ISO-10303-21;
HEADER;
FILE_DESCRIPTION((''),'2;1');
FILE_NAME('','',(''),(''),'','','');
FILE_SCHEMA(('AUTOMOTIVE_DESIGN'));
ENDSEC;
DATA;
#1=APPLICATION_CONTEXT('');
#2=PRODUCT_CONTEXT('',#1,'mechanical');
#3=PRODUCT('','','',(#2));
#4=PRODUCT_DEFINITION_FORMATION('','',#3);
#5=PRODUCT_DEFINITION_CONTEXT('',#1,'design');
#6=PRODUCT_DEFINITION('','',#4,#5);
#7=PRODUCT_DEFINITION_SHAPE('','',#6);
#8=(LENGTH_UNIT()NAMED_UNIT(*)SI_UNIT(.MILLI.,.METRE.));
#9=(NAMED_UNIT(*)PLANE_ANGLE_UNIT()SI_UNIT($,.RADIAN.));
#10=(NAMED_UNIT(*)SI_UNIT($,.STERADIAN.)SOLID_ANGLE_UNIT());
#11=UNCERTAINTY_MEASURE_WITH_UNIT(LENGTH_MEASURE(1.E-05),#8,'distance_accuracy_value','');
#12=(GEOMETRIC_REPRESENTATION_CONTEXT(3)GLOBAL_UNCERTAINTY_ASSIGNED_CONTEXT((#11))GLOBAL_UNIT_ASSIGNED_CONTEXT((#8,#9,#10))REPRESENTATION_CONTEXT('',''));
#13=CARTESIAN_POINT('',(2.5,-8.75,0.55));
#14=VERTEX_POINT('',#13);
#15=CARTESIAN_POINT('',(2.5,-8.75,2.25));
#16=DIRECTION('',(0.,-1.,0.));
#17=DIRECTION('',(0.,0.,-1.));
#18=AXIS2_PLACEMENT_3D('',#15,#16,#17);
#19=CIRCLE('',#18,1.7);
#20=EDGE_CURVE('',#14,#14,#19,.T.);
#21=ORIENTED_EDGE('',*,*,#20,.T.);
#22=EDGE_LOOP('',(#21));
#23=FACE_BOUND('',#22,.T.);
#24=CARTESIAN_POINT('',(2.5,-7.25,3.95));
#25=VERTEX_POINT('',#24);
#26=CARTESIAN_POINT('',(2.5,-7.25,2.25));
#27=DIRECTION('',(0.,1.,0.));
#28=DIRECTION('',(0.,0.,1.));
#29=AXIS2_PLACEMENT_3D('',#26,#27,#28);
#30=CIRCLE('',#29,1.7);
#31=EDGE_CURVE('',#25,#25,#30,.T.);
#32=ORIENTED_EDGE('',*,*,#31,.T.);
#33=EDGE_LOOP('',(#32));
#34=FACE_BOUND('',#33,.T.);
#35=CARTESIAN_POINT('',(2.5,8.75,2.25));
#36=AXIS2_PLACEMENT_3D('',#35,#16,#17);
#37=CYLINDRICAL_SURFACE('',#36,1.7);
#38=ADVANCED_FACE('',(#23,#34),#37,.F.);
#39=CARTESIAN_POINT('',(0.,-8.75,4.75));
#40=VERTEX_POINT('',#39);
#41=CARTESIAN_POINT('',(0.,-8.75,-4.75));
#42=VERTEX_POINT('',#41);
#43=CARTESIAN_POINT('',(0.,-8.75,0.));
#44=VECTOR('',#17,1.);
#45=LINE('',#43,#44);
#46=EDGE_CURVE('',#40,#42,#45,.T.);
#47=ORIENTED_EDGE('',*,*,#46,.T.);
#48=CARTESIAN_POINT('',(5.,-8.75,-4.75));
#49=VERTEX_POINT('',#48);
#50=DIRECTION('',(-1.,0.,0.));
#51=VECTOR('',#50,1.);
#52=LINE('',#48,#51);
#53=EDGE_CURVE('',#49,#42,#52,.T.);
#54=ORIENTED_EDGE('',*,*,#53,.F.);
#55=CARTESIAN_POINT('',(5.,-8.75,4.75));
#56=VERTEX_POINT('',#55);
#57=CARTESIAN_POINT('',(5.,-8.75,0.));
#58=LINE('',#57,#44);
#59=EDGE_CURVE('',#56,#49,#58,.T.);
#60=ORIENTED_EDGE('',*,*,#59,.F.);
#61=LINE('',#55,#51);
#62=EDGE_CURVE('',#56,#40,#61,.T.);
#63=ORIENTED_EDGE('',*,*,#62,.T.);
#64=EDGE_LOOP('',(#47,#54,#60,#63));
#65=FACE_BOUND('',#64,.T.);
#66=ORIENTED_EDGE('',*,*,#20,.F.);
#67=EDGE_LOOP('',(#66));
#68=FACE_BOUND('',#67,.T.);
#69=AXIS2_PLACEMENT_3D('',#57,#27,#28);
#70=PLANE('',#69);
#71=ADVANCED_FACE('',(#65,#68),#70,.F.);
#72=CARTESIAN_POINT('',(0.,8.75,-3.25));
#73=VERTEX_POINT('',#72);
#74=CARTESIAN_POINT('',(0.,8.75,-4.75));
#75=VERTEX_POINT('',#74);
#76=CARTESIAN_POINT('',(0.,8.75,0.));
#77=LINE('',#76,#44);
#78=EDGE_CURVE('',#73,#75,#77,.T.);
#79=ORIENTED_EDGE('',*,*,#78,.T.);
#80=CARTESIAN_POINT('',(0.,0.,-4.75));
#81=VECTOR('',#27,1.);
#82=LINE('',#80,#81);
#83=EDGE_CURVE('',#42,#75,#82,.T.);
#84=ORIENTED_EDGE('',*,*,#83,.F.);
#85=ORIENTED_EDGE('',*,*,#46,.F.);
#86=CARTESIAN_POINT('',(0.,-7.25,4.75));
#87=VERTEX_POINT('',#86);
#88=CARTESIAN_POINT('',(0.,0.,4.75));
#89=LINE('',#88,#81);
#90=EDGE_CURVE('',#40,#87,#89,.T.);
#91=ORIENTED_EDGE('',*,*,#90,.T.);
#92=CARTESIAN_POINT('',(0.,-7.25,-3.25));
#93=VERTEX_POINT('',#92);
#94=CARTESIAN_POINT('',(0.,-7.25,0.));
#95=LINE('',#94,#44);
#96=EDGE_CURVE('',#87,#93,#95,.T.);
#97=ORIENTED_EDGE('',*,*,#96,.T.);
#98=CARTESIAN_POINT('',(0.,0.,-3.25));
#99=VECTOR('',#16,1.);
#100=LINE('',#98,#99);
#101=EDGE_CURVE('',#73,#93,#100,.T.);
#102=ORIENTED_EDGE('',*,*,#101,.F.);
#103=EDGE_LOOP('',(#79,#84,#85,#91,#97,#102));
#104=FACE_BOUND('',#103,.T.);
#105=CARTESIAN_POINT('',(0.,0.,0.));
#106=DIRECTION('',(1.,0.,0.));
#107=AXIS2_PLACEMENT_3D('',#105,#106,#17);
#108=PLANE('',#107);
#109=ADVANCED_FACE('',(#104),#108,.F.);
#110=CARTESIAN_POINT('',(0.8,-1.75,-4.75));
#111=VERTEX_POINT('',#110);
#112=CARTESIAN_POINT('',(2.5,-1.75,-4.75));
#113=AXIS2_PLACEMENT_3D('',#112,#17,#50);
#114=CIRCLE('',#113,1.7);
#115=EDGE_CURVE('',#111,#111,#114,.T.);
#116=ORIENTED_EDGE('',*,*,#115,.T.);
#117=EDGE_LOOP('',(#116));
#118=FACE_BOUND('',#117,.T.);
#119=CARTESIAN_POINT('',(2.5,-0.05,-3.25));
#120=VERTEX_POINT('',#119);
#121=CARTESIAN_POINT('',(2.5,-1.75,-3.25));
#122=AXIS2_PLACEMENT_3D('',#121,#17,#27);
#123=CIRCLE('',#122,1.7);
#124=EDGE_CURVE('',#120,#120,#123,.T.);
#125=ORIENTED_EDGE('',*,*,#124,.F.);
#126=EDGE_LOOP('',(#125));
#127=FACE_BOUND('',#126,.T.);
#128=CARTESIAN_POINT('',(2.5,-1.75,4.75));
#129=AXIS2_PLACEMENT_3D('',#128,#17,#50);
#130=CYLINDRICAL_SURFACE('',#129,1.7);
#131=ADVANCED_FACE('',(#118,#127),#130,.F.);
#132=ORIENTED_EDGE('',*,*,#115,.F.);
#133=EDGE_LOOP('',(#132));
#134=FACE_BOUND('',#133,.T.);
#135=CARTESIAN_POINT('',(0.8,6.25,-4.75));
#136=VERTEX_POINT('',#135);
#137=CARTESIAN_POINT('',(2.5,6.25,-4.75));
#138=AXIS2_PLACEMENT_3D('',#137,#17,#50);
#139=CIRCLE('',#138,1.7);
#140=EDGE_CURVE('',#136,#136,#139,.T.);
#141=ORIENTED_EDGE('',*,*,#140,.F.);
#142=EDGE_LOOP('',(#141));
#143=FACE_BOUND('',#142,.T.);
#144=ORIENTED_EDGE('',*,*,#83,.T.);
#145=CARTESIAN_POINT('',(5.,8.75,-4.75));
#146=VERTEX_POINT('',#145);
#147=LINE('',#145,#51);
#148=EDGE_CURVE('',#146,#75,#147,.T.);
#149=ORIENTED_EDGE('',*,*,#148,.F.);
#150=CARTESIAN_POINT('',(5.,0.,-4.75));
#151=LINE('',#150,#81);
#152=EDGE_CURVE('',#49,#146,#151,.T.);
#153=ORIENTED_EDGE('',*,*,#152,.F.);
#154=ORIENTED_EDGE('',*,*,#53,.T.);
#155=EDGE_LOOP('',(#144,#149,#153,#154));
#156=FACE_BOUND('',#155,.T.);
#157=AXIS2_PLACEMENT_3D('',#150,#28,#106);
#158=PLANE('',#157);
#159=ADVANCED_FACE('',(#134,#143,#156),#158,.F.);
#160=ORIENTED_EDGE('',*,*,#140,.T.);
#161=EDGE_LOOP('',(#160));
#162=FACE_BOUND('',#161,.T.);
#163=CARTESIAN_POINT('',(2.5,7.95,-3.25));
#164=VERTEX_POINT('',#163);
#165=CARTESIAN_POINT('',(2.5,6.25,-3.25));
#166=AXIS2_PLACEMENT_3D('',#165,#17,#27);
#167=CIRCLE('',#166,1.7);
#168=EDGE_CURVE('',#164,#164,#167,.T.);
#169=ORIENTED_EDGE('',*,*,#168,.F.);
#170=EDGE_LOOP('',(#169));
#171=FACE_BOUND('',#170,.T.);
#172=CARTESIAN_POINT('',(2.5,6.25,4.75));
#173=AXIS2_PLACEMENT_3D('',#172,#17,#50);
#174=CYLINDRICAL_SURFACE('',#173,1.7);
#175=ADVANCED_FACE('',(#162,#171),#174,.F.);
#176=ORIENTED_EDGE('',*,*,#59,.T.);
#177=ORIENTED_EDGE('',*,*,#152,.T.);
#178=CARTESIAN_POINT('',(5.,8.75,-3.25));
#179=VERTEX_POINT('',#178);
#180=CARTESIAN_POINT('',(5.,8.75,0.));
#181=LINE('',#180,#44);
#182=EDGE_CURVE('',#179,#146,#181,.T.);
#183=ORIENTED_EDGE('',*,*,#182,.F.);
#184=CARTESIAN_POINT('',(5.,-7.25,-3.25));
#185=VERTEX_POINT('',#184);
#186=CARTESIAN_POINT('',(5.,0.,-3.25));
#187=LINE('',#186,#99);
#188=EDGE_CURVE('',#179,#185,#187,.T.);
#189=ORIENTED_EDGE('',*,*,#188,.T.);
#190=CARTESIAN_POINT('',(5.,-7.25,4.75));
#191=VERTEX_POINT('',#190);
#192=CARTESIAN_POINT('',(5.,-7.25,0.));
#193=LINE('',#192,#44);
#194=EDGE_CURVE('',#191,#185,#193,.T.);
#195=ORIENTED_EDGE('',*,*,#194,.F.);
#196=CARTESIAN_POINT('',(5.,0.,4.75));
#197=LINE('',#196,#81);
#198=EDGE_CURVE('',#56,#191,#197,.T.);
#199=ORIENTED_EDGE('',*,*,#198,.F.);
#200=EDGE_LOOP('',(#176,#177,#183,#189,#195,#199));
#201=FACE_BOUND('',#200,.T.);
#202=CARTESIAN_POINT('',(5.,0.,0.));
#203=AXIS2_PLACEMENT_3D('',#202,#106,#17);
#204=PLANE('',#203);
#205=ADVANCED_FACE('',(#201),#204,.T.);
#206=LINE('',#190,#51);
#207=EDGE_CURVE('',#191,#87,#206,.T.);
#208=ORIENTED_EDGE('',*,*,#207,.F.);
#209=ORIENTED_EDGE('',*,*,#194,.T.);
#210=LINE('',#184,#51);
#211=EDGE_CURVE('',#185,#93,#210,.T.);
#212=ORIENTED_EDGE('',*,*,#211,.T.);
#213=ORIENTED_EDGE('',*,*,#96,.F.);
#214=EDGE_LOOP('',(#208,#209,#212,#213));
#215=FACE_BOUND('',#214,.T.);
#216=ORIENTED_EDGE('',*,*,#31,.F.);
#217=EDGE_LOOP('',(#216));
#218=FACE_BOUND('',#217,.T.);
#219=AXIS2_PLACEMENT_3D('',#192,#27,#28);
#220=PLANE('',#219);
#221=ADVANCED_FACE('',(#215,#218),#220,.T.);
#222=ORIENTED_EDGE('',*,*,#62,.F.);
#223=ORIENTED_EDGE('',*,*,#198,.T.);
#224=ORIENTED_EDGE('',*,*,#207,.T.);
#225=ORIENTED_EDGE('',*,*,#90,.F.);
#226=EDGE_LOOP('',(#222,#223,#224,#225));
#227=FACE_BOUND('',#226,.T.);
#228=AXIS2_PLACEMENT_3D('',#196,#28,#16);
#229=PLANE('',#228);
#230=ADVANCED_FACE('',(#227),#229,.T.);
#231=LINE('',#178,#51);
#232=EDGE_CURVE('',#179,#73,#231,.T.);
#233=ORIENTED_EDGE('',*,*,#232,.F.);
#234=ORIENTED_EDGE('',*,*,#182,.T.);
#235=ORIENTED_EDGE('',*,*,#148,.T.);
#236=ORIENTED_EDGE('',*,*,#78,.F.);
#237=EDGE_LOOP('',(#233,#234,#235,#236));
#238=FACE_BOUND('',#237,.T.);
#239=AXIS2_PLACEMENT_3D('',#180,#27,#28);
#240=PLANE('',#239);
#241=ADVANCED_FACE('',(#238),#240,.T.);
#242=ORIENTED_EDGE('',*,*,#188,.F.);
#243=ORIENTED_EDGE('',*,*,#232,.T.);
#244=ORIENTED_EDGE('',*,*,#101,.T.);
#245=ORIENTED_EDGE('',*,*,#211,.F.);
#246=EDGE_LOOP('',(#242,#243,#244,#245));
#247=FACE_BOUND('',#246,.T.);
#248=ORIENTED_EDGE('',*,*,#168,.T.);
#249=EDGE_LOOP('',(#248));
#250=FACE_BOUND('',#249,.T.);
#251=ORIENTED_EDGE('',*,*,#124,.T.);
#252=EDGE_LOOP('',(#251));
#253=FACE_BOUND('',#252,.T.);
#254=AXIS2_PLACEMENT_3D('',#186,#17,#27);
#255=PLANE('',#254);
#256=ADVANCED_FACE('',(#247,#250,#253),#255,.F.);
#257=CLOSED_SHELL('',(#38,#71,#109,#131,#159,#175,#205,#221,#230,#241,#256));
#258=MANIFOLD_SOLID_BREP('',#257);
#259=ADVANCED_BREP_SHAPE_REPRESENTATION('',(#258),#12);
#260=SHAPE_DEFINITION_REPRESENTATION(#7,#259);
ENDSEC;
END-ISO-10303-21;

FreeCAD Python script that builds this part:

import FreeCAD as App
import Part
import Sketcher
from FreeCAD import Vector
Q = App.Units.Quantity

doc = App.newDocument("Part")
body = doc.addObject("PartDesign::Body", "Body")

# Sketch on YZ plane
sketch1 = doc.addObject("Sketcher::SketchObject", "Sketch")
body.addObject(sketch1)
sketch1.AttachmentSupport = (doc.YZ_Plane, [""])
sketch1.MapMode = "FlatFace"
sketch1.addGeometry([
    Part.LineSegment(Vector(-7.2, 4.8, 0), Vector(-8.8, 4.8, 0)),  # 0
    Part.LineSegment(Vector(-8.8, 4.8, 0), Vector(-8.8, -4.8, 0)),  # 1
    Part.LineSegment(Vector(-8.8, -4.8, 0), Vector(8.8, -4.8, 0)),  # 2
    Part.LineSegment(Vector(8.8, -4.8, 0), Vector(8.8, -3.2, 0)),  # 3
    Part.LineSegment(Vector(8.8, -3.2, 0), Vector(-7.2, -3.2, 0)),  # 4
    Part.LineSegment(Vector(-7.2, -3.2, 0), Vector(-7.2, 4.8, 0)),  # 5
], False)
sketch1.addConstraint([
    Sketcher.Constraint("Coincident", 0, 2, 1, 1),
    Sketcher.Constraint("Coincident", 1, 2, 2, 1),
    Sketcher.Constraint("Coincident", 2, 2, 3, 1),
    Sketcher.Constraint("Coincident", 3, 2, 4, 1),
    Sketcher.Constraint("Coincident", 4, 2, 5, 1),
    Sketcher.Constraint("Coincident", 5, 2, 0, 1),
    Sketcher.Constraint("Horizontal", 0),
    Sketcher.Constraint("Vertical", 1),
    Sketcher.Constraint("Horizontal", 2),
    Sketcher.Constraint("Vertical", 3),
    Sketcher.Constraint("Horizontal", 4),
    Sketcher.Constraint("Vertical", 5),
    Sketcher.Constraint("Symmetric", 0, 2, 2, 2, -1, 1),
    Sketcher.Constraint("Equal", 0, 3),
    Sketcher.Constraint("DistanceX", 4, 2, 4, 1, Q("16 mm")),
    Sketcher.Constraint("DistanceY", 5, 1, 5, 2, Q("8 mm")),
    Sketcher.Constraint("DistanceX", 0, 2, 0, 1, Q("1.5 mm")),
])
pad1 = doc.addObject("PartDesign::Pad", "Pad")
body.addObject(pad1)
pad1.Profile = sketch1
pad1.Length = 5

# Sketch on XZ plane
sketch2 = doc.addObject("Sketcher::SketchObject", "Sketch001")
body.addObject(sketch2)
sketch2.AttachmentSupport = (doc.XZ_Plane, [""])
sketch2.MapMode = "FlatFace"
sketch2.AttachmentOffset = App.Placement(Vector(0, 0, 8.75), App.Rotation())
sketch2.addGeometry(Part.Circle(Vector(2.5, 2.2, 0), Vector(0, 0, 1), 1.7), False)
sketch2.addConstraint([
    Sketcher.Constraint("Diameter", 0, Q("3.4 mm")),
    Sketcher.Constraint("DistanceX", -1, 1, 0, 3, Q("2.5 mm")),
    Sketcher.Constraint("DistanceY", -1, 1, 0, 3, Q("2.25 mm")),
])
pocket1 = doc.addObject("PartDesign::Pocket", "Pocket")
body.addObject(pocket1)
pocket1.Profile = sketch2
pocket1.Type = "ThroughAll"

# Sketch on XY plane
sketch3 = doc.addObject("Sketcher::SketchObject", "Sketch002")
body.addObject(sketch3)
sketch3.AttachmentSupport = (doc.XY_Plane, [""])
sketch3.MapMode = "FlatFace"
sketch3.AttachmentOffset = App.Placement(Vector(0, 0, -4.75), App.Rotation())
sketch3.addGeometry([
    Part.Circle(Vector(2.5, -1.8, 0), Vector(0, 0, 1), 1.7),
    Part.Circle(Vector(2.5, 6.2, 0), Vector(0, 0, 1), 1.7),
], False)
sketch3.addConstraint([
    Sketcher.Constraint("Equal", 0, 1),
    Sketcher.Constraint("Vertical", 0, 3, 1, 3),
    Sketcher.Constraint("Diameter", 0, Q("3.4 mm")),
    Sketcher.Constraint("DistanceY", 0, 3, 1, 3, Q("8 mm")),
    Sketcher.Constraint("DistanceX", -1, 1, 0, 3, Q("2.5 mm")),
    Sketcher.Constraint("DistanceY", 0, 3, -1, 1, Q("1.75 mm")),
])
pocket2 = doc.addObject("PartDesign::Pocket", "Pocket001")
body.addObject(pocket2)
pocket2.Profile = sketch3
pocket2.Type = "ThroughAll"
pocket2.Reversed = True

doc.recompute()
